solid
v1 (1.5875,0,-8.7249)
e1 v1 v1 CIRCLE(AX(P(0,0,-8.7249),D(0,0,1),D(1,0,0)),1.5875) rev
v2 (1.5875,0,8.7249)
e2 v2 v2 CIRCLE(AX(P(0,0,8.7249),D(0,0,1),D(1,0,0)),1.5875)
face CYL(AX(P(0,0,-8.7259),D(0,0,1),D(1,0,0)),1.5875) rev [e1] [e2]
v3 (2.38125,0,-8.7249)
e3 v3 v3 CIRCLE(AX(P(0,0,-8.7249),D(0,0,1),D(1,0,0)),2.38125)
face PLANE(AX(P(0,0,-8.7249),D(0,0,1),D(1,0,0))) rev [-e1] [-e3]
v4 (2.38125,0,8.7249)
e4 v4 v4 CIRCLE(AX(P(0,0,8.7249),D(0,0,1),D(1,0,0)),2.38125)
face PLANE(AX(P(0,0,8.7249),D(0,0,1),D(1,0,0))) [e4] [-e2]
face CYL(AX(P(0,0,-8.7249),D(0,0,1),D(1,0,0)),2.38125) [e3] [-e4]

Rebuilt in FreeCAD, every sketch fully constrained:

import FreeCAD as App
import Part
import Sketcher
Q = App.Units.Quantity

doc = App.newDocument("Part")
body = doc.addObject("PartDesign::Body", "Body")

# Sketch on XY plane
sketch1 = body.newObject("Sketcher::SketchObject", "Sketch")
sketch1.AttachmentSupport = (doc.getObject("XY_Plane"), [""])
sketch1.MapMode = "FlatFace"
sketch1.AttachmentOffset = App.Placement(App.Vector(0, 0, 0.3435 * 25.4), App.Rotation())
sketch1.addGeometry(Part.Circle(App.Vector(0, 0, 0), App.Vector(0, 0, 1), 2.4), False)
sketch1.addConstraint([
    Sketcher.Constraint("Coincident", 0, 3, -1, 1),
    Sketcher.Constraint("Diameter", 0, Q("0.1875 in")),
])
pad1 = body.newObject("PartDesign::Pad", "Pad")
pad1.Profile = sketch1
pad1.Length = Q("0.687 in")
pad1.Reversed = True

# Sketch on XY plane
sketch2 = body.newObject("Sketcher::SketchObject", "Sketch001")
sketch2.AttachmentSupport = (doc.getObject("XY_Plane"), [""])
sketch2.MapMode = "FlatFace"
sketch2.AttachmentOffset = App.Placement(App.Vector(0, 0, 0.3435 * 25.4), App.Rotation())
sketch2.addGeometry(Part.Circle(App.Vector(0, 0, 0), App.Vector(0, 0, 1), 1.6), False)
sketch2.addConstraint([
    Sketcher.Constraint("Coincident", 0, 3, -1, 1),
    Sketcher.Constraint("Diameter", 0, Q("0.125 in")),
])
pocket1 = body.newObject("PartDesign::Pocket", "Pocket")
pocket1.Profile = sketch2
pocket1.Type = "UpToFirst"

doc.recompute()
